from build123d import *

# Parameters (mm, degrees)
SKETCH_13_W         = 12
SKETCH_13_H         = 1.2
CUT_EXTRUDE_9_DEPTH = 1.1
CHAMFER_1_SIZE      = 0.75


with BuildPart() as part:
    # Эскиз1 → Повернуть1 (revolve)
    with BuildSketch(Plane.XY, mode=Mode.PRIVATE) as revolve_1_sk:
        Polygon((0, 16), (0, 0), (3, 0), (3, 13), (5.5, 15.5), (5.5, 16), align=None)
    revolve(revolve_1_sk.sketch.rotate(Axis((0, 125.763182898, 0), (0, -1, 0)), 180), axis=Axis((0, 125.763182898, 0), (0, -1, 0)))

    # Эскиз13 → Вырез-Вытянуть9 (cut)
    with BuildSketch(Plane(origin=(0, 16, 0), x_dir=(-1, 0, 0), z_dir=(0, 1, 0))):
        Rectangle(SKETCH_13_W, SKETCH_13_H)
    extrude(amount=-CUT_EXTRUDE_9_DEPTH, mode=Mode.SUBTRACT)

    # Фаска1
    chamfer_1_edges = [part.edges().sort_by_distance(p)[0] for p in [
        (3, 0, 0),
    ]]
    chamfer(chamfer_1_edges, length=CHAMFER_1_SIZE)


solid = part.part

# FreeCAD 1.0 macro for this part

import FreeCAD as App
import Part
import Sketcher
Q = App.Units.Quantity


def edges_at(feature, points):
    """Names of the edges that pass closest to the given points."""
    edges = feature.Shape.Edges
    near = lambda p: min(range(len(edges)), key=lambda i: edges[i].distToShape(Part.Vertex(*p))[0])
    return sorted({f"Edge{near(p) + 1}" for p in points})

doc = App.newDocument("Part")
body = doc.addObject("PartDesign::Body", "Body")

# Sketch on XY plane
sketch1 = body.newObject("Sketcher::SketchObject", "Sketch")
sketch1.AttachmentSupport = (doc.getObject("XY_Plane"), [""])
sketch1.MapMode = "FlatFace"
sketch1.addGeometry(Part.LineSegment(App.Vector(0, 16, 0), App.Vector(0, 0, 0)), False)
sketch1.addGeometry(Part.LineSegment(App.Vector(0, 0, 0), App.Vector(3, 0, 0)), False)
sketch1.addGeometry(Part.LineSegment(App.Vector(3, 0, 0), App.Vector(3, 13, 0)), False)
sketch1.addGeometry(Part.LineSegment(App.Vector(3, 13, 0), App.Vector(5.5, 15.5, 0)), False)
sketch1.addGeometry(Part.LineSegment(App.Vector(5.5, 15.5, 0), App.Vector(5.5, 16, 0)), False)
sketch1.addGeometry(Part.LineSegment(App.Vector(5.5, 16, 0), App.Vector(0, 16, 0)), False)
sketch1.addConstraint(Sketcher.Constraint("Coincident", 0, 2, 1, 1))
sketch1.addConstraint(Sketcher.Constraint("Coincident", 1, 2, 2, 1))
sketch1.addConstraint(Sketcher.Constraint("Coincident", 2, 2, 3, 1))
sketch1.addConstraint(Sketcher.Constraint("Coincident", 3, 2, 4, 1))
sketch1.addConstraint(Sketcher.Constraint("Coincident", 4, 2, 5, 1))
sketch1.addConstraint(Sketcher.Constraint("Coincident", 5, 2, 0, 1))
sketch1.addConstraint(Sketcher.Constraint("Vertical", 0))
sketch1.addConstraint(Sketcher.Constraint("Horizontal", 1))
sketch1.addConstraint(Sketcher.Constraint("Vertical", 2))
sketch1.addConstraint(Sketcher.Constraint("Vertical", 4))
sketch1.addConstraint(Sketcher.Constraint("Horizontal", 5))
sketch1.addConstraint(Sketcher.Constraint("Coincident", 0, 2, -1, 1))
sketch1.addConstraint(Sketcher.Constraint("DistanceX", 1, 1, 1, 2, 3.0))
sketch1.addConstraint(Sketcher.Constraint("DistanceY", 0, 2, 0, 1, 16.0))
sketch1.addConstraint(Sketcher.Constraint("DistanceY", 2, 1, 2, 2, 13.0))
sketch1.addConstraint(Sketcher.Constraint("Angle", 3, Q("45 deg")))
sketch1.addConstraint(Sketcher.Constraint("DistanceX", 5, 2, 5, 1, 5.5))
revolution = body.newObject("PartDesign::Revolution", "Revolution")
revolution.Profile = sketch1
revolution.ReferenceAxis = (sketch1, ["V_Axis"])
revolution.Angle = 360

# Sketch on XZ plane
sketch2 = body.newObject("Sketcher::SketchObject", "Sketch001")
sketch2.AttachmentSupport = (doc.getObject("XZ_Plane"), [""])
sketch2.MapMode = "FlatFace"
sketch2.AttachmentOffset = App.Placement(App.Vector(0, 0, -16), App.Rotation())
sketch2.addGeometry(Part.LineSegment(App.Vector(6, 0.6, 0), App.Vector(6, -0.6, 0)), False)
sketch2.addGeometry(Part.LineSegment(App.Vector(6, -0.6, 0), App.Vector(-6, -0.6, 0)), False)
sketch2.addGeometry(Part.LineSegment(App.Vector(-6, -0.6, 0), App.Vector(-6, 0.6, 0)), False)
sketch2.addGeometry(Part.LineSegment(App.Vector(-6, 0.6, 0), App.Vector(6, 0.6, 0)), False)
sketch2.addConstraint(Sketcher.Constraint("Coincident", 0, 2, 1, 1))
sketch2.addConstraint(Sketcher.Constraint("Coincident", 1, 2, 2, 1))
sketch2.addConstraint(Sketcher.Constraint("Coincident", 2, 2, 3, 1))
sketch2.addConstraint(Sketcher.Constraint("Coincident", 3, 2, 0, 1))
sketch2.addConstraint(Sketcher.Constraint("Vertical", 0))
sketch2.addConstraint(Sketcher.Constraint("Horizontal", 1))
sketch2.addConstraint(Sketcher.Constraint("Vertical", 2))
sketch2.addConstraint(Sketcher.Constraint("Horizontal", 3))
sketch2.addConstraint(Sketcher.Constraint("Symmetric", 0, 2, 2, 2, -1, 1))
sketch2.addConstraint(Sketcher.Constraint("DistanceX", 1, 2, 1, 1, 12.0))
sketch2.addConstraint(Sketcher.Constraint("DistanceY", 0, 2, 0, 1, 1.2))
pocket1 = body.newObject("PartDesign::Pocket", "Pocket")
pocket1.Profile = sketch2
pocket1.Length = 1.1
pocket1.Reversed = True
doc.recompute()

chamfer = body.newObject("PartDesign::Chamfer", "Chamfer")
chamfer.Base = (pocket1, edges_at(pocket1, [(3, 0, 0)]))
chamfer.Size = 0.75

doc.recompute()
